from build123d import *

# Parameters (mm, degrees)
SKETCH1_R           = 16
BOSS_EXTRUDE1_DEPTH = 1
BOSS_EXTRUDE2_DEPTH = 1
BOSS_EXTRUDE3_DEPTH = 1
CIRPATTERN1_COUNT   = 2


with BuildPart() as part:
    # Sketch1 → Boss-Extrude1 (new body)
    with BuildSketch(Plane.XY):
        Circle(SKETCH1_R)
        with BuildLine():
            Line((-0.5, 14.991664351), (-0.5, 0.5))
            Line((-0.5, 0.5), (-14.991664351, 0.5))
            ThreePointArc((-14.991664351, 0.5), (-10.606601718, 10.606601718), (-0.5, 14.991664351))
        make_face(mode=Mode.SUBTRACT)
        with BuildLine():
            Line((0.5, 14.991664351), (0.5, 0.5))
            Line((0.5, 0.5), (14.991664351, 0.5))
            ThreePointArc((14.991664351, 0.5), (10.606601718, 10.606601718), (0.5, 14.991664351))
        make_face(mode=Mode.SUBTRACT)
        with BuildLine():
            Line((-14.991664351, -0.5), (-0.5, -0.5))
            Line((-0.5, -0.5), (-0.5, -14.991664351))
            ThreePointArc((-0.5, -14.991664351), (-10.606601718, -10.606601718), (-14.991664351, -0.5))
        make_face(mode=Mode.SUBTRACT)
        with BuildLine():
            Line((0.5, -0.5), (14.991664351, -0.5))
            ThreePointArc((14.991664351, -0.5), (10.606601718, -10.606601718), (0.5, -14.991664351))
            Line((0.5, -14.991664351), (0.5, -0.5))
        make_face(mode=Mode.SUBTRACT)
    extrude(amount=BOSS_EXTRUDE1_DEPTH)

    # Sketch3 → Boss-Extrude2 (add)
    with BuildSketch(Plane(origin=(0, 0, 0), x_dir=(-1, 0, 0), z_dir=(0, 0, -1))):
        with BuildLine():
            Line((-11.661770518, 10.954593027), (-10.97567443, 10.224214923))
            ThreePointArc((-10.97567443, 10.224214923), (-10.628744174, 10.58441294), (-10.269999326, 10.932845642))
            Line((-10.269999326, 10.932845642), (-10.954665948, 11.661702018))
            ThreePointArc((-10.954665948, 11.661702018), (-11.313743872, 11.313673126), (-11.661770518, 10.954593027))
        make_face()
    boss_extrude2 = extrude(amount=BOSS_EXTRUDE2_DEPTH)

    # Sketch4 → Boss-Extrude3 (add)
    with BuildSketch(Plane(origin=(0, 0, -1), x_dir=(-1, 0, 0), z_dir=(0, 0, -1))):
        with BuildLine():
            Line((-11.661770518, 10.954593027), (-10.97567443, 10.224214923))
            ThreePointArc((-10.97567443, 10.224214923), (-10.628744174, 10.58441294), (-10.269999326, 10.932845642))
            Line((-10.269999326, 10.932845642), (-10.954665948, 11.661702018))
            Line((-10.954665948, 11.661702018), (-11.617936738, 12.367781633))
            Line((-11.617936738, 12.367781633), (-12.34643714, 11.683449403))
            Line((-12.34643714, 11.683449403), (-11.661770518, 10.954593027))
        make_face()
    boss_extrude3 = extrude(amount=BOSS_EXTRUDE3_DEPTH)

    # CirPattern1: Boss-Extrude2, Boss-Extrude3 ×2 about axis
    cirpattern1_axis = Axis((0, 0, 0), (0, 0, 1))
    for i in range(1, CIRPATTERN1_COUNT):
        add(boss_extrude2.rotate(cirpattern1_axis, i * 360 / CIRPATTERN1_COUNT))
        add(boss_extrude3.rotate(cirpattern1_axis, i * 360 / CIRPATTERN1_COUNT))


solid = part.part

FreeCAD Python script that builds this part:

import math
import FreeCAD as App
import Part
import Sketcher

V = App.Vector
Q = App.Units.Quantity

doc = App.newDocument("Part")
body = doc.addObject("PartDesign::Body", "Body")

# Sketch on XY plane
sketch1 = body.newObject("Sketcher::SketchObject", "Sketch")
sketch1.AttachmentSupport = (doc.getObject("XY_Plane"), [""])
sketch1.MapMode = "FlatFace"
sketch1.addGeometry(Part.Circle(V(0, 0, 0), V(0, 0, 1), 16), False)
sketch1.addGeometry(Part.ArcOfCircle(Part.Circle(V(0, 0, 0), V(0, 0, 1), 15), math.radians(-178), math.radians(-92)), False)
sketch1.addGeometry(Part.LineSegment(V(-15, 0, 0), V(0, 0, 0)), False)
sketch1.addGeometry(Part.LineSegment(V(0, 0, 0), V(0, -15, 0)), False)
sketch1.addGeometry(Part.LineSegment(V(0, -15, 0), V(0, 0, 0)), False)
sketch1.addGeometry(Part.LineSegment(V(0, 0, 0), V(15, 0, 0)), False)
sketch1.addGeometry(Part.ArcOfCircle(Part.Circle(V(0, 0, 0), V(0, 0, 1), 15), math.radians(-88), math.radians(-2)), False)
sketch1.addGeometry(Part.ArcOfCircle(Part.Circle(V(0, 0, 0), V(0, 0, 1), 15), math.radians(92), math.radians(178)), False)
sketch1.addGeometry(Part.LineSegment(V(0, 15, 0), V(0, 0, 0)), False)
sketch1.addGeometry(Part.LineSegment(V(0, 0, 0), V(-15, 0, 0)), False)
sketch1.addGeometry(Part.LineSegment(V(0, 0, 0), V(0, 15, 0)), False)
sketch1.addGeometry(Part.ArcOfCircle(Part.Circle(V(0, 0, 0), V(0, 0, 1), 15), math.radians(2), math.radians(88)), False)
sketch1.addGeometry(Part.LineSegment(V(15, 0, 0), V(0, 0, 0)), False)
sketch1.addConstraint(Sketcher.Constraint("Coincident", 1, 1, 2, 1))
sketch1.addConstraint(Sketcher.Constraint("Coincident", 2, 2, 3, 1))
sketch1.addConstraint(Sketcher.Constraint("Coincident", 3, 2, 1, 2))
sketch1.addConstraint(Sketcher.Constraint("Coincident", 4, 2, 5, 1))
sketch1.addConstraint(Sketcher.Constraint("Coincident", 5, 2, 6, 2))
sketch1.addConstraint(Sketcher.Constraint("Coincident", 6, 1, 4, 1))
sketch1.addConstraint(Sketcher.Constraint("Coincident", 7, 1, 8, 1))
sketch1.addConstraint(Sketcher.Constraint("Coincident", 8, 2, 9, 1))
sketch1.addConstraint(Sketcher.Constraint("Coincident", 9, 2, 7, 2))
sketch1.addConstraint(Sketcher.Constraint("Coincident", 10, 2, 11, 2))
sketch1.addConstraint(Sketcher.Constraint("Coincident", 11, 1, 12, 1))
sketch1.addConstraint(Sketcher.Constraint("Coincident", 12, 2, 10, 1))
sketch1.addConstraint(Sketcher.Constraint("Horizontal", 2))
sketch1.addConstraint(Sketcher.Constraint("Vertical", 3))
sketch1.addConstraint(Sketcher.Constraint("Vertical", 4))
sketch1.addConstraint(Sketcher.Constraint("Horizontal", 5))
sketch1.addConstraint(Sketcher.Constraint("Vertical", 8))
sketch1.addConstraint(Sketcher.Constraint("Horizontal", 9))
sketch1.addConstraint(Sketcher.Constraint("Vertical", 10))
sketch1.addConstraint(Sketcher.Constraint("Horizontal", 12))
sketch1.addConstraint(Sketcher.Constraint("Coincident", 0, 3, -1, 1))
sketch1.addConstraint(Sketcher.Constraint("Coincident", 1, 3, -1, 1))
sketch1.addConstraint(Sketcher.Constraint("Coincident", 6, 3, -1, 1))
sketch1.addConstraint(Sketcher.Constraint("Coincident", 7, 3, -1, 1))
sketch1.addConstraint(Sketcher.Constraint("Coincident", 11, 3, -1, 1))
sketch1.addConstraint(Sketcher.Constraint("Equal", 1, 6))
sketch1.addConstraint(Sketcher.Constraint("Equal", 6, 7))
sketch1.addConstraint(Sketcher.Constraint("Equal", 7, 11))
sketch1.addConstraint(Sketcher.Constraint("Symmetric", 4, 2, 8, 2, -1, 1))
sketch1.addConstraint(Sketcher.Constraint("Symmetric", 2, 2, 12, 2, -1, 1))
sketch1.addConstraint(Sketcher.Constraint("Symmetric", 2, 2, 4, 2, -2))
sketch1.addConstraint(Sketcher.Constraint("Equal", 12, 3))
sketch1.addConstraint(Sketcher.Constraint("Diameter", 0, Q("32 mm")))
sketch1.addConstraint(Sketcher.Constraint("Radius", 1, Q("15 mm")))
sketch1.addConstraint(Sketcher.Constraint("DistanceX", 3, 2, 6, 1, Q("1 mm")))
pad1 = body.newObject("PartDesign::Pad", "Pad")
pad1.Profile = sketch1
pad1.Length = 1

# Sketch on XY plane
sketch2 = body.newObject("Sketcher::SketchObject", "Sketch001")
sketch2.AttachmentSupport = (doc.getObject("XY_Plane"), [""])
sketch2.MapMode = "FlatFace"
sketch2.addGeometry(Part.LineSegment(V(11.7, 11, 0), V(11, 10.2, 0)), False)
sketch2.addGeometry(Part.ArcOfCircle(Part.Circle(V(0, 0, 0), V(0, 0, 1), 15), math.radians(42.97), math.radians(46.79)), False)
sketch2.addGeometry(Part.LineSegment(V(10.3, 10.9, 0), V(11, 11.7, 0)), False)
sketch2.addGeometry(Part.ArcOfCircle(Part.Circle(V(0, 0, 0), V(0, 0, 1), 16), math.radians(43.21), math.radians(46.79)), False)
sketch2.addConstraint(Sketcher.Constraint("Coincident", 0, 2, 1, 1))
sketch2.addConstraint(Sketcher.Constraint("Coincident", 1, 2, 2, 1))
sketch2.addConstraint(Sketcher.Constraint("Coincident", 2, 2, 3, 2))
sketch2.addConstraint(Sketcher.Constraint("Coincident", 3, 1, 0, 1))
sketch2.addConstraint(Sketcher.Constraint("Coincident", 1, 3, -1, 1))
sketch2.addConstraint(Sketcher.Constraint("Coincident", 3, 3, -1, 1))
sketch2.addConstraint(Sketcher.Constraint("Parallel", 0, 2))
sketch2.addConstraint(Sketcher.Constraint("Radius", 1, Q("14.999999 mm")))
sketch2.addConstraint(Sketcher.Constraint("Radius", 3, Q("15.999999 mm")))
sketch2.addConstraint(Sketcher.Constraint("DistanceX", -1, 1, 1, 2, Q("10.269999 mm")))
sketch2.addConstraint(Sketcher.Constraint("DistanceY", 1, 3, 2, 2, Q("11.661701 mm")))
sketch2.addConstraint(Sketcher.Constraint("DistanceX", -1, 1, 3, 1, Q("11.661771 mm")))
pad2 = body.newObject("PartDesign::Pad", "Pad001")
pad2.Profile = sketch2
pad2.Length = 1
pad2.Reversed = True

# Sketch on XY plane
sketch3 = body.newObject("Sketcher::SketchObject", "Sketch002")
sketch3.AttachmentSupport = (doc.getObject("XY_Plane"), [""])
sketch3.MapMode = "FlatFace"
sketch3.AttachmentOffset = App.Placement(V(0, 0, -1), App.Rotation())
sketch3.addGeometry(Part.LineSegment(V(11.7, 11, 0), V(11, 10.2, 0)), False)
sketch3.addGeometry(Part.ArcOfCircle(Part.Circle(V(0, 0, 0), V(0, 0, 1), 15), math.radians(42.97), math.radians(46.79)), False)
sketch3.addGeometry(Part.LineSegment(V(10.3, 10.9, 0), V(11, 11.7, 0)), False)
sketch3.addGeometry(Part.LineSegment(V(11, 11.7, 0), V(11.6, 12.4, 0)), False)
sketch3.addGeometry(Part.LineSegment(V(11.6, 12.4, 0), V(12.3, 11.7, 0)), False)
sketch3.addGeometry(Part.LineSegment(V(12.3, 11.7, 0), V(11.7, 11, 0)), False)
sketch3.addConstraint(Sketcher.Constraint("Coincident", 0, 2, 1, 1))
sketch3.addConstraint(Sketcher.Constraint("Coincident", 1, 2, 2, 1))
sketch3.addConstraint(Sketcher.Constraint("Coincident", 2, 2, 3, 1))
sketch3.addConstraint(Sketcher.Constraint("Coincident", 3, 2, 4, 1))
sketch3.addConstraint(Sketcher.Constraint("Coincident", 4, 2, 5, 1))
sketch3.addConstraint(Sketcher.Constraint("Coincident", 5, 2, 0, 1))
sketch3.addConstraint(Sketcher.Constraint("Coincident", 1, 3, -1, 1))
sketch3.addConstraint(Sketcher.Constraint("Parallel", 0, 2))
sketch3.addConstraint(Sketcher.Constraint("Parallel", 2, 3))
sketch3.addConstraint(Sketcher.Constraint("Perpendicular", 3, 4))
sketch3.addConstraint(Sketcher.Constraint("Perpendicular", 4, 5))
sketch3.addConstraint(Sketcher.Constraint("Equal", 2, 5))
sketch3.addConstraint(Sketcher.Constraint("Radius", 1, Q("14.999999 mm")))
sketch3.addConstraint(Sketcher.Constraint("Distance", 2, Q("1 mm")))
sketch3.addConstraint(Sketcher.Constraint("DistanceX", -1, 1, 1, 2, Q("10.269999 mm")))
sketch3.addConstraint(Sketcher.Constraint("DistanceY", 1, 3, 2, 2, Q("11.661701 mm")))
sketch3.addConstraint(Sketcher.Constraint("DistanceX", 3, 2, 4, 2, Q("0.7285 mm")))
sketch3.addConstraint(Sketcher.Constraint("Distance", 3, Q("0.96875 mm")))
pad3 = body.newObject("PartDesign::Pad", "Pad002")
pad3.Profile = sketch3
pad3.Length = 1
pad3.Reversed = True
doc.recompute()

polarpattern = body.newObject("PartDesign::PolarPattern", "PolarPattern")
polarpattern.Originals = [pad2, pad3]
polarpattern.Axis = (doc.getObject("Z_Axis"), [""])
polarpattern.Angle = 360
polarpattern.Occurrences = 2
body.Tip = polarpattern

doc.recompute()
